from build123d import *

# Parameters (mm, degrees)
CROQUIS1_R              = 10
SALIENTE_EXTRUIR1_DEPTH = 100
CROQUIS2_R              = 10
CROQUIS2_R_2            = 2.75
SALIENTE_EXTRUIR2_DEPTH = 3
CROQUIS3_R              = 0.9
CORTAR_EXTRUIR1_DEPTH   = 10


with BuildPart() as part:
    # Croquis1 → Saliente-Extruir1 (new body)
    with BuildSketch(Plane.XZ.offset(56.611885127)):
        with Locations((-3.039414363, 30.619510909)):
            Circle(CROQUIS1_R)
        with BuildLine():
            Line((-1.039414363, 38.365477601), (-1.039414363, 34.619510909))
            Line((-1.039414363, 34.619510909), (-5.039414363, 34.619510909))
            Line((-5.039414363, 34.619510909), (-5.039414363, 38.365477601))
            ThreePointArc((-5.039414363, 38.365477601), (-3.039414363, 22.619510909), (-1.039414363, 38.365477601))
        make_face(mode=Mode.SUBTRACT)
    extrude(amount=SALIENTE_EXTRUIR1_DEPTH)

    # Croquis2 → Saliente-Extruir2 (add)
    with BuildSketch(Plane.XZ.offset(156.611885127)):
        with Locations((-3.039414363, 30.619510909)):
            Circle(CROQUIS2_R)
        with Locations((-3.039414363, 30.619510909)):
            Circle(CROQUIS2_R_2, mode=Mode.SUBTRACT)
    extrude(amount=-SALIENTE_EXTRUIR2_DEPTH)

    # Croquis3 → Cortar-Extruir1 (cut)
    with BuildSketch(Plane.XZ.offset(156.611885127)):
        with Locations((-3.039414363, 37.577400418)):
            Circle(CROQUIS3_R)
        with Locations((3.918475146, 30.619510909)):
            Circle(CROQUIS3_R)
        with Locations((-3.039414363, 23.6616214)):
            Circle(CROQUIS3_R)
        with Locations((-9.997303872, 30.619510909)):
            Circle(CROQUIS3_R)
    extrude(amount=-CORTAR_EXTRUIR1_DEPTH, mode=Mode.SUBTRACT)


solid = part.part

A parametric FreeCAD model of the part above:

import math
import FreeCAD as App
import Part
import Sketcher
Q = App.Units.Quantity

doc = App.newDocument("Part")
params = doc.addObject("Spreadsheet::Sheet", "Params")
for row, (alias, value) in enumerate([
    ("sketch1_diameter", "20 mm"),
    ("sketch1_radius", "8 mm"),
    ("sketch1_width", "4 mm"),
    ("pad1_length", "100 mm"),
    ("sketch2_diameter", "20 mm"),
    ("sketch2_diameter2", "5.5 mm"),
    ("pad2_length", "3 mm"),
    ("sketch3_diameter", "1.8 mm"),
    ("pocket1_length", "10 mm"),
], start=1):
    params.set(f"A{row}", alias)
    params.set(f"B{row}", "=" + value)
    params.setAlias(f"B{row}", alias)

body = doc.addObject("PartDesign::Body", "Body")

# Sketch on XZ plane
sketch1 = doc.addObject("Sketcher::SketchObject", "Sketch")
body.addObject(sketch1)
sketch1.AttachmentSupport = (doc.XZ_Plane, [""])
sketch1.MapMode = "FlatFace"
sketch1.AttachmentOffset = App.Placement(App.Vector(0, 0, 56.611885), App.Rotation())
sketch1.addGeometry([
    Part.Circle(App.Vector(-3, 30.6, 0), App.Vector(0, 0, 1), 10),  # 0
    Part.LineSegment(App.Vector(-1, 34.6, 0), App.Vector(-1, 38.4, 0)),  # 1
    Part.ArcOfCircle(Part.Circle(App.Vector(-3, 30.6, 0), App.Vector(0, 0, 1), 8), math.radians(104), math.radians(436)),  # 2
    Part.LineSegment(App.Vector(-5, 38.4, 0), App.Vector(-5, 34.6, 0)),  # 3
    Part.LineSegment(App.Vector(-5, 34.6, 0), App.Vector(-1, 34.6, 0)),  # 4
], False)
sketch1.addConstraint([
    Sketcher.Constraint("Coincident", 1, 2, 2, 2),
    Sketcher.Constraint("Coincident", 2, 1, 3, 1),
    Sketcher.Constraint("Coincident", 3, 2, 4, 1),
    Sketcher.Constraint("Coincident", 4, 2, 1, 1),
    Sketcher.Constraint("Vertical", 1),
    Sketcher.Constraint("Vertical", 3),
    Sketcher.Constraint("Horizontal", 4),
    Sketcher.Constraint("Coincident", 2, 3, 0, 3),
    Sketcher.Constraint("Horizontal", 1, 2, 2, 1),
    Sketcher.Constraint("Diameter", 0, Q("20 mm")),
    Sketcher.Constraint("Radius", 2, Q("8 mm")),
    Sketcher.Constraint("DistanceX", 4, 1, 4, 2, Q("4 mm")),
    Sketcher.Constraint("DistanceY", 0, 3, 3, 2, Q("4 mm")),
    Sketcher.Constraint("DistanceY", -1, 1, 0, 3, Q("30.619511 mm")),
    Sketcher.Constraint("DistanceX", 0, 3, -1, 1, Q("3.039414 mm")),
])
sketch1.setExpression("Constraints[9]", "Params.sketch1_diameter")
sketch1.setExpression("Constraints[10]", "Params.sketch1_radius")
sketch1.setExpression("Constraints[11]", "Params.sketch1_width")
pad1 = doc.addObject("PartDesign::Pad", "Pad")
body.addObject(pad1)
pad1.Profile = sketch1
pad1.setExpression("Length", "Params.pad1_length")

# Sketch on XZ plane
sketch2 = doc.addObject("Sketcher::SketchObject", "Sketch001")
body.addObject(sketch2)
sketch2.AttachmentSupport = (doc.XZ_Plane, [""])
sketch2.MapMode = "FlatFace"
sketch2.AttachmentOffset = App.Placement(App.Vector(0, 0, 156.611885), App.Rotation())
sketch2.addGeometry([
    Part.Circle(App.Vector(-3, 30.6, 0), App.Vector(0, 0, 1), 10),
    Part.Circle(App.Vector(-3, 30.6, 0), App.Vector(0, 0, 1), 2.8),
], False)
sketch2.addConstraint([
    Sketcher.Constraint("Coincident", 1, 3, 0, 3),
    Sketcher.Constraint("Diameter", 0, Q("20 mm")),
    Sketcher.Constraint("Diameter", 1, Q("5.5 mm")),
    Sketcher.Constraint("DistanceY", -1, 1, 0, 3, Q("30.619511 mm")),
    Sketcher.Constraint("DistanceX", 0, 3, -1, 1, Q("3.039414 mm")),
])
sketch2.setExpression("Constraints[1]", "Params.sketch2_diameter")
sketch2.setExpression("Constraints[2]", "Params.sketch2_diameter2")
pad2 = doc.addObject("PartDesign::Pad", "Pad001")
body.addObject(pad2)
pad2.Profile = sketch2
pad2.setExpression("Length", "Params.pad2_length")
pad2.Reversed = True

# Sketch on XZ plane
sketch3 = doc.addObject("Sketcher::SketchObject", "Sketch002")
body.addObject(sketch3)
sketch3.AttachmentSupport = (doc.XZ_Plane, [""])
sketch3.MapMode = "FlatFace"
sketch3.AttachmentOffset = App.Placement(App.Vector(0, 0, 156.611885), App.Rotation())
sketch3.addGeometry([
    Part.Circle(App.Vector(-3, 37.6, 0), App.Vector(0, 0, 1), 0.9),
    Part.Circle(App.Vector(3.9, 30.6, 0), App.Vector(0, 0, 1), 0.9),
    Part.Circle(App.Vector(-3, 23.7, 0), App.Vector(0, 0, 1), 0.9),
    Part.Circle(App.Vector(-10, 30.6, 0), App.Vector(0, 0, 1), 0.9),
], False)
sketch3.addConstraint([
    Sketcher.Constraint("Equal", 0, 1),
    Sketcher.Constraint("Equal", 1, 2),
    Sketcher.Constraint("Equal", 2, 3),
    Sketcher.Constraint("Horizontal", 1, 3, 3, 3),
    Sketcher.Constraint("Vertical", 0, 3, 2, 3),
    Sketcher.Constraint("Diameter", 0, Q("1.8 mm")),
    Sketcher.Constraint("DistanceY", -1, 1, 0, 3, Q("37.5774 mm")),
    Sketcher.Constraint("DistanceY", -1, 1, 1, 3, Q("30.619511 mm")),
    Sketcher.Constraint("DistanceY", -1, 1, 2, 3, Q("23.661621 mm")),
    Sketcher.Constraint("DistanceX", 0, 3, 1, 3, Q("6.95789 mm")),
    Sketcher.Constraint("DistanceX", 3, 3, 2, 3, Q("6.95789 mm")),
    Sketcher.Constraint("DistanceX", 0, 3, -1, 1, Q("3.039414 mm")),
])
sketch3.setExpression("Constraints[5]", "Params.sketch3_diameter")
pocket1 = doc.addObject("PartDesign::Pocket", "Pocket")
body.addObject(pocket1)
pocket1.Profile = sketch3
pocket1.setExpression("Length", "Params.pocket1_length")

doc.recompute()
